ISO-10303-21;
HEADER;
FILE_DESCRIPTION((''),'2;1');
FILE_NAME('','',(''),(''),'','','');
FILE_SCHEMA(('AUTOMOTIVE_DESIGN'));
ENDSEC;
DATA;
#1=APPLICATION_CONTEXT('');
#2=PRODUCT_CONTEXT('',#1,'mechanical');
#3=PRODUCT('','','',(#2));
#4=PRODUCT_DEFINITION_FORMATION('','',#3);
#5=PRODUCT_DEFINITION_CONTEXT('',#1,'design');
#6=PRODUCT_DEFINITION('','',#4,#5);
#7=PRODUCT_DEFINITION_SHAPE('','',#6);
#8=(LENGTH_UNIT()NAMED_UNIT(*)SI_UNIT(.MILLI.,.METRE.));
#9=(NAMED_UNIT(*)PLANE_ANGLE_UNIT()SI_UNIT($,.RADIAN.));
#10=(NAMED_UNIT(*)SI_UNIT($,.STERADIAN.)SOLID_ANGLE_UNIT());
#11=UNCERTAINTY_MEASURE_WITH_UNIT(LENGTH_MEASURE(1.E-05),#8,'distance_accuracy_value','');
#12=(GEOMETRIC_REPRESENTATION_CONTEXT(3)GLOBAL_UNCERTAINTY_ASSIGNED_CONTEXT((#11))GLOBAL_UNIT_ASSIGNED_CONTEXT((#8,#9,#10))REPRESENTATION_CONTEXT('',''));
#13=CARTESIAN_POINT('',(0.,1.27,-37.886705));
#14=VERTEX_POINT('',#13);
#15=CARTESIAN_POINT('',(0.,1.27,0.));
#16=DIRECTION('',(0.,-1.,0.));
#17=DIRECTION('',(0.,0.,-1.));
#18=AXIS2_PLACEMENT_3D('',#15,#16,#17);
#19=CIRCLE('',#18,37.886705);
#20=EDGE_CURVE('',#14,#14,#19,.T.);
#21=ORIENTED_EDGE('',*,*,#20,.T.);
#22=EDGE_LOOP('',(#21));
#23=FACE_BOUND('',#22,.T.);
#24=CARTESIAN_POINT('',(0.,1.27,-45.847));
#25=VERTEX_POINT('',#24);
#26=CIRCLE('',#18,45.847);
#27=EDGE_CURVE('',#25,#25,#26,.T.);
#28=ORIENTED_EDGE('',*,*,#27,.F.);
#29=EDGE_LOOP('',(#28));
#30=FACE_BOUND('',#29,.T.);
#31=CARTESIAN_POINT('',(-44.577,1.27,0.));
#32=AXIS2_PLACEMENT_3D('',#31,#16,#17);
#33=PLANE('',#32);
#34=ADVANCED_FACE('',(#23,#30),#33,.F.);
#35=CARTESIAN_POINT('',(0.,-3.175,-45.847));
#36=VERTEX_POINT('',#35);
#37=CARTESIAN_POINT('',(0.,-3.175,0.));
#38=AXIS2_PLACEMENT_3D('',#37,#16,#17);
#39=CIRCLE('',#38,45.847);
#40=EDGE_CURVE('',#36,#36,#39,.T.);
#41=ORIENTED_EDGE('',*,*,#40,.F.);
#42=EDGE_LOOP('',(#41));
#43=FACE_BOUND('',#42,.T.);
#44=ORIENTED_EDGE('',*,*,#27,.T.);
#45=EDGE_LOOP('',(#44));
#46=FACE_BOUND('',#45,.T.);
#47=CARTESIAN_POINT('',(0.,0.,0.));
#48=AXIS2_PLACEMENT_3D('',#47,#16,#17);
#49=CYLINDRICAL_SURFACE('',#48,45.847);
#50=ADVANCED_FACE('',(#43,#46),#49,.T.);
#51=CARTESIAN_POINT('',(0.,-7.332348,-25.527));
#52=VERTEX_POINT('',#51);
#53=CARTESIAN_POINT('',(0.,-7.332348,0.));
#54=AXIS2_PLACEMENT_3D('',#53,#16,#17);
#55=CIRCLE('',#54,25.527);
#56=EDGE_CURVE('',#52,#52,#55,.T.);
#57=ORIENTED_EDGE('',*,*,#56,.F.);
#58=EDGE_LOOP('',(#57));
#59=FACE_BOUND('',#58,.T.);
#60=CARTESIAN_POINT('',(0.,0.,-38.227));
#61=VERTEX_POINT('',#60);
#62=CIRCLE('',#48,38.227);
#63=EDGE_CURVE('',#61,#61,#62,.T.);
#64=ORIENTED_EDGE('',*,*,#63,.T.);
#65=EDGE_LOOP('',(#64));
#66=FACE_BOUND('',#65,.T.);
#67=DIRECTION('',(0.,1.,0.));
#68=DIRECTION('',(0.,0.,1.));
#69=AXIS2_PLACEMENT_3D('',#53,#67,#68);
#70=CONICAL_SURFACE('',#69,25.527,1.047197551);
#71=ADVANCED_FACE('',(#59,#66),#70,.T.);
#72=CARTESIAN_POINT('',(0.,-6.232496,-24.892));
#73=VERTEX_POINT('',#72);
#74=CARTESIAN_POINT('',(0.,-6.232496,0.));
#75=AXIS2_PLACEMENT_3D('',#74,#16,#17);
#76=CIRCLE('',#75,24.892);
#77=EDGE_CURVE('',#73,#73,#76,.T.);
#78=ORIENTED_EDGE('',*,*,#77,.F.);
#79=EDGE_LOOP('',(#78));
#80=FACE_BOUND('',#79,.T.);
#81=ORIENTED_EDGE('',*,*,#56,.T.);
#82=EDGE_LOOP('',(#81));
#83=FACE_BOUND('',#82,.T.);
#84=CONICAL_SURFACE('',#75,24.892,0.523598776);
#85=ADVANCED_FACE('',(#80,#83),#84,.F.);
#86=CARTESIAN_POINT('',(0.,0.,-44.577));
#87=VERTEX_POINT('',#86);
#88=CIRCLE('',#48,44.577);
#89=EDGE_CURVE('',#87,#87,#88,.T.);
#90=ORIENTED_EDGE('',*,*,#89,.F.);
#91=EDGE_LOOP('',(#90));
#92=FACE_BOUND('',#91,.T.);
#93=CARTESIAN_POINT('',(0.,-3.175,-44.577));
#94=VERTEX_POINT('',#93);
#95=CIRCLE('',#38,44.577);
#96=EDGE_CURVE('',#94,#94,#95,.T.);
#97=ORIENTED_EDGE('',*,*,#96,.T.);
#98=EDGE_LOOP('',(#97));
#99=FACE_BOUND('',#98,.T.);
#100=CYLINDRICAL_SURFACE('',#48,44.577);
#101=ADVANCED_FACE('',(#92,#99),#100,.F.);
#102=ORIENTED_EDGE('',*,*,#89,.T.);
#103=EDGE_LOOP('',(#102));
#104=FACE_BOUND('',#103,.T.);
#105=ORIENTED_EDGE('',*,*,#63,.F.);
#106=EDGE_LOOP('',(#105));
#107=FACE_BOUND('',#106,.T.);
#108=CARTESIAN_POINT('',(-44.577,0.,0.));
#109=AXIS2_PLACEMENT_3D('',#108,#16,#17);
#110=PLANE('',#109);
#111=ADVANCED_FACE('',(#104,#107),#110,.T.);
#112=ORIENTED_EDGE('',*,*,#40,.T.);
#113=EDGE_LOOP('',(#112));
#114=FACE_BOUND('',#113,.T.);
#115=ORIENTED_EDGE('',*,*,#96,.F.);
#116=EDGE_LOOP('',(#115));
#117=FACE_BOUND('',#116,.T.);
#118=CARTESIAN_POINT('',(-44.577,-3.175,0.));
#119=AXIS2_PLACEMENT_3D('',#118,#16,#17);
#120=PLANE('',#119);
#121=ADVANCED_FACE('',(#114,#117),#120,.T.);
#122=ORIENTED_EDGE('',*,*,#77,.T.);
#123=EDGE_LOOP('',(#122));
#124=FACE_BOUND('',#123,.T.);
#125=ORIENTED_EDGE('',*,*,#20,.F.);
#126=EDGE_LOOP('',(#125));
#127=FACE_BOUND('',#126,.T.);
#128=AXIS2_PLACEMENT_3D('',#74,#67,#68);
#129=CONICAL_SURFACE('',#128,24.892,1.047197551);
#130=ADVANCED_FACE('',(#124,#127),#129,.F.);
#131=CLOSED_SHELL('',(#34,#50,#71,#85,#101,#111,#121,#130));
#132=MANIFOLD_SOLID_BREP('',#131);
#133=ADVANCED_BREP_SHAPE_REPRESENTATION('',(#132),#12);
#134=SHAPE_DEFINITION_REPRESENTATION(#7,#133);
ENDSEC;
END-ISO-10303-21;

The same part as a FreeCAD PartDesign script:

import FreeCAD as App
import Part
import Sketcher
from FreeCAD import Vector
Q = App.Units.Quantity


def add_polygon(sketch, points):
    """Adds a closed chain of lines whose ends are joined by coincident constraints."""
    first, n = sketch.GeometryCount, len(points)
    for a, b in zip(points, points[1:] + points[:1]):
        sketch.addGeometry(Part.LineSegment(App.Vector(*a, 0), App.Vector(*b, 0)), False)
    for i in range(n):
        sketch.addConstraint(Sketcher.Constraint("Coincident", first + i, 2, first + (i + 1) % n, 1))

doc = App.newDocument("Part")
body = doc.addObject("PartDesign::Body", "Body")

sketch1 = body.newObject("Sketcher::SketchObject", "Sketch")
sketch1.AttachmentSupport = (doc.getObject("XY_Plane"), [""])
sketch1.MapMode = "FlatFace"
add_polygon(sketch1, [(-38.2, 0), (-25.5, -7.3), (-24.9, -6.2), (-37.9, 1.3), (-45.8, 1.3), (-45.8, -3.2), (-44.6, -3.2), (-44.6, 0)])
sketch1.addConstraint(Sketcher.Constraint("Horizontal", 3))
sketch1.addConstraint(Sketcher.Constraint("Vertical", 4))
sketch1.addConstraint(Sketcher.Constraint("Horizontal", 5))
sketch1.addConstraint(Sketcher.Constraint("Vertical", 6))
sketch1.addConstraint(Sketcher.Constraint("Horizontal", 7))
sketch1.addConstraint(Sketcher.Constraint("PointOnObject", 6, 2, -1))
sketch1.addConstraint(Sketcher.Constraint("Perpendicular", 0, 1))
sketch1.addConstraint(Sketcher.Constraint("Perpendicular", 1, 2))
sketch1.addConstraint(Sketcher.Constraint("Angle", 0, Q("-30 deg")))
sketch1.addConstraint(Sketcher.Constraint("DistanceX", 5, 1, 5, 2, Q("0.05 in")))
sketch1.addConstraint(Sketcher.Constraint("DistanceX", 7, 1, 7, 2, Q("0.25 in")))
sketch1.addConstraint(Sketcher.Constraint("DistanceX", 3, 2, 0, 2, Q("0.8 in")))
sketch1.addConstraint(Sketcher.Constraint("Distance", 1, Q("0.05 in")))
sketch1.addConstraint(Sketcher.Constraint("DistanceY", 4, 2, 4, 1, Q("0.175 in")))
sketch1.addConstraint(Sketcher.Constraint("DistanceY", 6, 1, 6, 2, Q("0.125 in")))
sketch1.addConstraint(Sketcher.Constraint("DistanceX", 1, 2, -1, 1, Q("0.98 in")))
revolution = body.newObject("PartDesign::Revolution", "Revolution")
revolution.Profile = sketch1
revolution.ReferenceAxis = (sketch1, ["V_Axis"])
revolution.Angle = 360

doc.recompute()
